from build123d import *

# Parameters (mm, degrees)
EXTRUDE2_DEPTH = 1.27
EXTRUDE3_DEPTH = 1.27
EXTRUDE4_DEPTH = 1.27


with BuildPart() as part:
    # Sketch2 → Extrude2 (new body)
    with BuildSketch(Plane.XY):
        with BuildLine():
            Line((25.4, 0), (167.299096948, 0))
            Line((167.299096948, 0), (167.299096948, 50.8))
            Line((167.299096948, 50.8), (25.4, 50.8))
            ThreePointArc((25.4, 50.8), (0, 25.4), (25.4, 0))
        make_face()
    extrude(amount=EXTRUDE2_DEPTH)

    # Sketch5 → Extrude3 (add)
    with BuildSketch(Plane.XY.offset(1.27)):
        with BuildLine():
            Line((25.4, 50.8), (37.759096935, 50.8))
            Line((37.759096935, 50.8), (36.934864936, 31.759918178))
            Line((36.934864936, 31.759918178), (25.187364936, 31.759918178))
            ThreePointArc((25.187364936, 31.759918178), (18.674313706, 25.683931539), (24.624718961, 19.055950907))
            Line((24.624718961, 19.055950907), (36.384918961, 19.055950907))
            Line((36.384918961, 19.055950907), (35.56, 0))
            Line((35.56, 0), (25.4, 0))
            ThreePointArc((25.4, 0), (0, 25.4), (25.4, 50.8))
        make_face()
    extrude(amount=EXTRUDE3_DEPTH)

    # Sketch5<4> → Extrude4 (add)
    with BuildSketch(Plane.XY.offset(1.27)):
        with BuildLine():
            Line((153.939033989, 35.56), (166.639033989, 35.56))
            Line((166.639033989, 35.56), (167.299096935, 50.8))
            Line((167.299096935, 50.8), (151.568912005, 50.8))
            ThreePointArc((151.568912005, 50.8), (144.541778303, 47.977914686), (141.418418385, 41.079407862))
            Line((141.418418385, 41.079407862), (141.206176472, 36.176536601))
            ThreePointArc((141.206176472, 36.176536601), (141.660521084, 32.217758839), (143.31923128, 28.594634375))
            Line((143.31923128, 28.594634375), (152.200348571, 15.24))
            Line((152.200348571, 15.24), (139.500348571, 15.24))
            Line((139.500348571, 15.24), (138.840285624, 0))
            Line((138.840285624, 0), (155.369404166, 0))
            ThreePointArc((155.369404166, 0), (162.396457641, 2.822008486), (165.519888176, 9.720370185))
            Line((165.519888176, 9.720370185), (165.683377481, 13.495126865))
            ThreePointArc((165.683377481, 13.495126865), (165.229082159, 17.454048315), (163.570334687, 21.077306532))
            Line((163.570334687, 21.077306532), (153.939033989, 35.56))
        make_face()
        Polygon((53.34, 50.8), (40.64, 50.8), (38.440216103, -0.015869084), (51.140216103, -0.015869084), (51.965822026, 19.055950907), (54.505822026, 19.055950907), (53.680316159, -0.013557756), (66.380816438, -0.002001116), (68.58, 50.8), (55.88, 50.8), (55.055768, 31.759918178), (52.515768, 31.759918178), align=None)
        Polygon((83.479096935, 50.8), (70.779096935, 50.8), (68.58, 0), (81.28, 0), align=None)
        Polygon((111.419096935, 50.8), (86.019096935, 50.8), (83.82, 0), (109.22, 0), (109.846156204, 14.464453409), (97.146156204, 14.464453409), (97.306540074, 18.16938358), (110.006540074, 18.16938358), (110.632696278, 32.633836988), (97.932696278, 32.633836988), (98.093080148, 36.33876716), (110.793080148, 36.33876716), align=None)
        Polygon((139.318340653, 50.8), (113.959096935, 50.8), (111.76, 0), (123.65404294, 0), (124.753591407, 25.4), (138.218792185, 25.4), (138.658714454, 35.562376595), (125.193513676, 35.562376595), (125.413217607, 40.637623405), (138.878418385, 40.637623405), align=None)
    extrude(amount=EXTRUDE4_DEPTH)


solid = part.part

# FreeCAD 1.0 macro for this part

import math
import FreeCAD as App
import Part
import Sketcher
from FreeCAD import Vector
Q = App.Units.Quantity


def add_polygon(sketch, points):
    """Adds a closed chain of lines whose ends are joined by coincident constraints."""
    first, n = sketch.GeometryCount, len(points)
    for a, b in zip(points, points[1:] + points[:1]):
        sketch.addGeometry(Part.LineSegment(App.Vector(*a, 0), App.Vector(*b, 0)), False)
    for i in range(n):
        sketch.addConstraint(Sketcher.Constraint("Coincident", first + i, 2, first + (i + 1) % n, 1))

doc = App.newDocument("Part")
body = doc.addObject("PartDesign::Body", "Body")

sketch1 = body.newObject("Sketcher::SketchObject", "Sketch")
sketch1.AttachmentSupport = (doc.getObject("XY_Plane"), [""])
sketch1.MapMode = "FlatFace"
sketch1.addGeometry([
    Part.LineSegment(Vector(25.4, 0, 0), Vector(167.299097, 0, 0)),
    Part.LineSegment(Vector(167.299097, 0, 0), Vector(167.299097, 50.8, 0)),
    Part.LineSegment(Vector(167.299097, 50.8, 0), Vector(25.4, 50.8, 0)),
    Part.ArcOfCircle(Part.Circle(Vector(25.4, 25.4, 0), Vector(0, 0, 1), 25.4), math.radians(90), math.radians(270)),
], False)
sketch1.addConstraint([
    Sketcher.Constraint("Coincident", 0, 2, 1, 1),
    Sketcher.Constraint("Coincident", 1, 2, 2, 1),
    Sketcher.Constraint("Tangent", 2, 2, 3, 1),
    Sketcher.Constraint("Tangent", 3, 2, 0, 1),
    Sketcher.Constraint("Horizontal", 0),
    Sketcher.Constraint("Vertical", 1),
    Sketcher.Constraint("Horizontal", 2),
    Sketcher.Constraint("PointOnObject", 0, 2, -1),
    Sketcher.Constraint("Radius", 3, Q("1 in")),
    Sketcher.Constraint("DistanceX", -1, 1, 3, 3, Q("1 in")),
    Sketcher.Constraint("DistanceX", 0, 1, 0, 2, Q("141.899097 mm")),
])
pad1 = body.newObject("PartDesign::Pad", "Pad")
pad1.Profile = sketch1
pad1.Length = Q("0.05 in")

sketch2 = body.newObject("Sketcher::SketchObject", "Sketch001")
sketch2.AttachmentSupport = (doc.getObject("XY_Plane"), [""])
sketch2.MapMode = "FlatFace"
sketch2.AttachmentOffset = App.Placement(Vector(0, 0, 0.05 * 25.4), App.Rotation())
sketch2.addGeometry([
    Part.LineSegment(Vector(37.759097, 50.8, 0), Vector(25.4, 50.8, 0)),
    Part.ArcOfCircle(Part.Circle(Vector(25.4, 25.4, 0), Vector(0, 0, 1), 25.4), math.radians(90), math.radians(270)),
    Part.LineSegment(Vector(25.4, 0, 0), Vector(35.56, 0, 0)),
    Part.LineSegment(Vector(35.56, 0, 0), Vector(36.384919, 19.055951, 0)),
    Part.LineSegment(Vector(36.384919, 19.055951, 0), Vector(24.624719, 19.055951, 0)),
    Part.ArcOfCircle(Part.Circle(Vector(25.027458, 25.402557, 0), Vector(0, 0, 1), 6.359372), math.radians(88.559138), math.radians(266.369031)),
    Part.LineSegment(Vector(25.187365, 31.759918, 0), Vector(36.934865, 31.759918, 0)),
    Part.LineSegment(Vector(36.934865, 31.759918, 0), Vector(37.759097, 50.8, 0)),
], False)
sketch2.addConstraint([
    Sketcher.Constraint("Tangent", 0, 2, 1, 1),
    Sketcher.Constraint("Tangent", 1, 2, 2, 1),
    Sketcher.Constraint("Coincident", 2, 2, 3, 1),
    Sketcher.Constraint("Coincident", 3, 2, 4, 1),
    Sketcher.Constraint("Coincident", 4, 2, 5, 2),
    Sketcher.Constraint("Coincident", 5, 1, 6, 1),
    Sketcher.Constraint("Coincident", 6, 2, 7, 1),
    Sketcher.Constraint("Coincident", 7, 2, 0, 1),
    Sketcher.Constraint("Horizontal", 0),
    Sketcher.Constraint("Horizontal", 2),
    Sketcher.Constraint("Horizontal", 4),
    Sketcher.Constraint("Horizontal", 6),
    Sketcher.Constraint("PointOnObject", 1, 2, -1),
    Sketcher.Constraint("Parallel", 3, 7),
    Sketcher.Constraint("Radius", 1, Q("1 in")),
    Sketcher.Constraint("DistanceX", 2, 1, 2, 2, Q("0.4 in")),
    Sketcher.Constraint("DistanceX", -1, 1, 1, 3, Q("1 in")),
    Sketcher.Constraint("DistanceX", 4, 2, 4, 1, Q("0.463 in")),
    Sketcher.Constraint("DistanceX", 6, 1, 6, 2, Q("0.4625 in")),
    Sketcher.Constraint("Radius", 5, Q("6.359372 mm")),
    Sketcher.Constraint("DistanceX", 0, 2, 0, 1, Q("12.359097 mm")),
    Sketcher.Constraint("DistanceX", -1, 1, 3, 2, Q("36.384919 mm")),
    Sketcher.Constraint("DistanceY", -1, 1, 3, 2, Q("19.055951 mm")),
    Sketcher.Constraint("DistanceY", -1, 1, 5, 1, Q("31.759918 mm")),
])
pad2 = body.newObject("PartDesign::Pad", "Pad001")
pad2.Profile = sketch2
pad2.Length = Q("0.05 in")

sketch3 = body.newObject("Sketcher::SketchObject", "Sketch002")
sketch3.AttachmentSupport = (doc.getObject("XY_Plane"), [""])
sketch3.MapMode = "FlatFace"
sketch3.AttachmentOffset = App.Placement(Vector(0, 0, 0.05 * 25.4), App.Rotation())
sketch3.addGeometry(Part.LineSegment(Vector(153.939034, 35.56, 0), Vector(166.639034, 35.56, 0)), False)
sketch3.addGeometry(Part.LineSegment(Vector(166.639034, 35.56, 0), Vector(167.299097, 50.8, 0)), False)
sketch3.addGeometry(Part.LineSegment(Vector(167.299097, 50.8, 0), Vector(151.568912, 50.8, 0)), False)
sketch3.addGeometry(Part.ArcOfCircle(Part.Circle(Vector(151.568912, 40.64, 0), Vector(0, 0, 1), 10.16), math.radians(90), math.radians(177.521253)), False)
sketch3.addGeometry(Part.LineSegment(Vector(141.418418, 41.079408, 0), Vector(141.206176, 36.176537, 0)), False)
sketch3.addGeometry(Part.ArcOfCircle(Part.Circle(Vector(153.894293, 35.627277, 0), Vector(0, 0, 1), 12.7), math.radians(177.521253), math.radians(213.624755)), False)
sketch3.addGeometry(Part.LineSegment(Vector(143.319231, 28.594634, 0), Vector(152.200349, 15.24, 0)), False)
sketch3.addGeometry(Part.LineSegment(Vector(152.200349, 15.24, 0), Vector(139.500349, 15.24, 0)), False)
sketch3.addGeometry(Part.LineSegment(Vector(139.500349, 15.24, 0), Vector(138.840286, 0, 0)), False)
sketch3.addGeometry(Part.LineSegment(Vector(138.840286, 0, 0), Vector(155.369404, 0, 0)), False)
sketch3.addGeometry(Part.ArcOfCircle(Part.Circle(Vector(155.369404, 10.16, 0), Vector(0, 0, 1), 10.16), math.radians(-90), math.radians(-2.48)), False)
sketch3.addGeometry(Part.LineSegment(Vector(165.519888, 9.72037, 0), Vector(165.683377, 13.495127, 0)), False)
sketch3.addGeometry(Part.ArcOfCircle(Part.Circle(Vector(152.995272, 14.044664, 0), Vector(0, 0, 1), 12.7), math.radians(-2.48), math.radians(33.624755)), False)
sketch3.addGeometry(Part.LineSegment(Vector(163.570335, 21.077307, 0), Vector(153.939034, 35.56, 0)), False)
add_polygon(sketch3, [(53.34, 50.8), (40.64, 50.8), (38.440216, -0.015869), (51.140216, -0.015869), (51.965822, 19.055951), (54.505822, 19.055951), (53.680316, -0.013558), (66.380816, -0.002001), (68.58, 50.8), (55.88, 50.8), (55.055768, 31.759918), (52.515768, 31.759918)])
add_polygon(sketch3, [(83.479097, 50.8), (70.779097, 50.8), (68.58, 0), (81.28, 0)])
add_polygon(sketch3, [(111.419097, 50.8), (86.019097, 50.8), (83.82, 0), (109.22, 0), (109.846156, 14.464453), (97.146156, 14.464453), (97.30654, 18.169384), (110.00654, 18.169384), (110.632696, 32.633837), (97.932696, 32.633837), (98.09308, 36.338767), (110.79308, 36.338767)])
add_polygon(sketch3, [(139.318341, 50.8), (113.959097, 50.8), (111.76, 0), (123.654043, 0), (124.753591, 25.4), (138.218792, 25.4), (138.658714, 35.562377), (125.193514, 35.562377), (125.413218, 40.637623), (138.878418, 40.637623)])
sketch3.addConstraint([
    Sketcher.Constraint("Coincident", 0, 2, 1, 1),
    Sketcher.Constraint("Coincident", 1, 2, 2, 1),
    Sketcher.Constraint("Tangent", 2, 2, 3, 1),
    Sketcher.Constraint("Tangent", 3, 2, 4, 1),
    Sketcher.Constraint("Tangent", 4, 2, 5, 1),
    Sketcher.Constraint("Tangent", 5, 2, 6, 1),
    Sketcher.Constraint("Coincident", 6, 2, 7, 1),
    Sketcher.Constraint("Coincident", 7, 2, 8, 1),
    Sketcher.Constraint("Coincident", 8, 2, 9, 1),
    Sketcher.Constraint("Tangent", 9, 2, 10, 1),
    Sketcher.Constraint("Tangent", 10, 2, 11, 1),
    Sketcher.Constraint("Tangent", 11, 2, 12, 1),
    Sketcher.Constraint("Tangent", 12, 2, 13, 1),
    Sketcher.Constraint("Coincident", 13, 2, 0, 1),
    Sketcher.Constraint("Horizontal", 0),
    Sketcher.Constraint("Horizontal", 2),
    Sketcher.Constraint("Horizontal", 7),
    Sketcher.Constraint("Horizontal", 9),
    Sketcher.Constraint("Horizontal", 14),
    Sketcher.Constraint("Horizontal", 16),
    Sketcher.Constraint("Horizontal", 18),
    Sketcher.Constraint("Horizontal", 22),
    Sketcher.Constraint("Horizontal", 24),
    Sketcher.Constraint("Horizontal", 26),
    Sketcher.Constraint("Horizontal", 28),
    Sketcher.Constraint("Horizontal", 30),
    Sketcher.Constraint("Horizontal", 32),
    Sketcher.Constraint("Horizontal", 34),
    Sketcher.Constraint("Horizontal", 36),
    Sketcher.Constraint("Horizontal", 38),
    Sketcher.Constraint("Horizontal", 40),
    Sketcher.Constraint("Horizontal", 42),
    Sketcher.Constraint("Horizontal", 44),
    Sketcher.Constraint("Horizontal", 46),
    Sketcher.Constraint("Horizontal", 48),
    Sketcher.Constraint("Horizontal", 50),
    Sketcher.Constraint("Equal", 3, 10),
    Sketcher.Constraint("Equal", 5, 12),
    Sketcher.Constraint("PointOnObject", 8, 2, -1),
    Sketcher.Constraint("PointOnObject", 27, 2, -1),
    Sketcher.Constraint("PointOnObject", 31, 2, -1),
    Sketcher.Constraint("PointOnObject", 43, 2, -1),
    Sketcher.Constraint("Parallel", 1, 8),
    Sketcher.Constraint("Parallel", 8, 11),
    Sketcher.Constraint("Parallel", 6, 13),
    Sketcher.Constraint("Parallel", 4, 15),
    Sketcher.Constraint("Parallel", 15, 17),
    Sketcher.Constraint("Parallel", 17, 19),
    Sketcher.Constraint("Parallel", 19, 21),
    Sketcher.Constraint("Parallel", 21, 23),
    Sketcher.Constraint("Parallel", 23, 25),
    Sketcher.Constraint("Parallel", 25, 27),
    Sketcher.Constraint("Parallel", 27, 29),
    Sketcher.Constraint("Parallel", 29, 31),
    Sketcher.Constraint("Parallel", 31, 33),
    Sketcher.Constraint("Parallel", 33, 35),
    Sketcher.Constraint("Parallel", 35, 37),
    Sketcher.Constraint("Parallel", 37, 39),
    Sketcher.Constraint("Parallel", 39, 41),
    Sketcher.Constraint("Parallel", 41, 43),
    Sketcher.Constraint("Parallel", 43, 45),
    Sketcher.Constraint("Parallel", 45, 47),
    Sketcher.Constraint("Parallel", 47, 49),
    Sketcher.Constraint("Parallel", 49, 51),
    Sketcher.Constraint("Horizontal", 2, 2, 14, 2),
    Sketcher.Constraint("Horizontal", 14, 2, 21, 2),
    Sketcher.Constraint("Horizontal", 25, 2, 26, 2),
    Sketcher.Constraint("Horizontal", 29, 2, 30, 2),
    Sketcher.Constraint("Horizontal", 41, 2, 42, 2),
    Sketcher.Constraint("Vertical", 21, 2, 27, 2),
    Sketcher.Constraint("Equal", 0, 7),
    Sketcher.Constraint("Equal", 7, 14),
    Sketcher.Constraint("Equal", 14, 16),
    Sketcher.Constraint("Equal", 16, 22),
    Sketcher.Constraint("Equal", 18, 24),
    Sketcher.Constraint("Equal", 22, 26),
    Sketcher.Constraint("Equal", 30, 32),
    Sketcher.Constraint("Equal", 28, 34),
    Sketcher.Constraint("Equal", 34, 36),
    Sketcher.Constraint("Equal", 36, 38),
    Sketcher.Constraint("Equal", 46, 48),
    Sketcher.Constraint("Equal", 48, 50),
    Sketcher.Constraint("Equal", 1, 8),
    Sketcher.Constraint("Equal", 33, 37),
    Sketcher.Constraint("Equal", 35, 39),
    Sketcher.Constraint("Equal", 47, 51),
    Sketcher.Constraint("Radius", 3, Q("0.4 in")),
    Sketcher.Constraint("Radius", 5, Q("0.5 in")),
    Sketcher.Constraint("DistanceX", 30, 2, 30, 1, Q("1 in")),
    Sketcher.Constraint("DistanceX", 0, 1, 0, 2, Q("0.5 in")),
    Sketcher.Constraint("DistanceX", 18, 1, 18, 2, Q("0.1 in")),
    Sketcher.Constraint("DistanceY", -1, 1, 1, 2, Q("2 in")),
    Sketcher.Constraint("DistanceY", -1, 1, 45, 2, Q("1 in")),
    Sketcher.Constraint("DistanceY", 10, 3, 0, 2, Q("1 in")),
    Sketcher.Constraint("Distance", 49, Q("0.2 in")),
    Sketcher.Constraint("DistanceX", -1, 1, 14, 2, Q("1.6 in")),
    Sketcher.Constraint("DistanceX", -1, 1, 31, 2, Q("3.3 in")),
    Sketcher.Constraint("DistanceX", -1, 1, 43, 2, Q("4.4 in")),
    Sketcher.Constraint("DistanceX", 50, 2, 3, 2, Q("0.1 in")),
    Sketcher.Constraint("Distance", 33, Q("0.57 in")),
    Sketcher.Constraint("Angle", 1, Q("87.52 deg")),
    Sketcher.Constraint("Distance", 35, Q("0.146 in")),
    Sketcher.Constraint("DistanceX", 46, 1, 46, 2, Q("13.465201 mm")),
    Sketcher.Constraint("DistanceY", 5, 2, 4, 2, Q("0.2985001 in")),
    Sketcher.Constraint("DistanceX", 9, 1, 9, 2, Q("16.529119 mm")),
    Sketcher.Constraint("DistanceY", 20, 2, -1, 1, Q("0.002001 mm")),
    Sketcher.Constraint("DistanceX", 16, 2, 19, 2, Q("2.5401 mm")),
    Sketcher.Constraint("DistanceX", 19, 2, 20, 2, Q("12.7005 mm")),
    Sketcher.Constraint("DistanceX", 30, 2, 37, 2, Q("24.613599 mm")),
    Sketcher.Constraint("Distance", 17, Q("19.089682 mm")),
    Sketcher.Constraint("DistanceX", 2, 2, 2, 1, Q("15.730185 mm")),
    Sketcher.Constraint("DistanceX", 42, 2, 42, 1, Q("25.359244 mm")),
    Sketcher.Constraint("DistanceX", -1, 1, 6, 2, Q("152.200349 mm")),
    Sketcher.Constraint("DistanceY", -1, 1, 23, 2, Q("31.759918 mm")),
])
pad3 = body.newObject("PartDesign::Pad", "Pad002")
pad3.Profile = sketch3
pad3.Length = Q("0.05 in")

doc.recompute()
